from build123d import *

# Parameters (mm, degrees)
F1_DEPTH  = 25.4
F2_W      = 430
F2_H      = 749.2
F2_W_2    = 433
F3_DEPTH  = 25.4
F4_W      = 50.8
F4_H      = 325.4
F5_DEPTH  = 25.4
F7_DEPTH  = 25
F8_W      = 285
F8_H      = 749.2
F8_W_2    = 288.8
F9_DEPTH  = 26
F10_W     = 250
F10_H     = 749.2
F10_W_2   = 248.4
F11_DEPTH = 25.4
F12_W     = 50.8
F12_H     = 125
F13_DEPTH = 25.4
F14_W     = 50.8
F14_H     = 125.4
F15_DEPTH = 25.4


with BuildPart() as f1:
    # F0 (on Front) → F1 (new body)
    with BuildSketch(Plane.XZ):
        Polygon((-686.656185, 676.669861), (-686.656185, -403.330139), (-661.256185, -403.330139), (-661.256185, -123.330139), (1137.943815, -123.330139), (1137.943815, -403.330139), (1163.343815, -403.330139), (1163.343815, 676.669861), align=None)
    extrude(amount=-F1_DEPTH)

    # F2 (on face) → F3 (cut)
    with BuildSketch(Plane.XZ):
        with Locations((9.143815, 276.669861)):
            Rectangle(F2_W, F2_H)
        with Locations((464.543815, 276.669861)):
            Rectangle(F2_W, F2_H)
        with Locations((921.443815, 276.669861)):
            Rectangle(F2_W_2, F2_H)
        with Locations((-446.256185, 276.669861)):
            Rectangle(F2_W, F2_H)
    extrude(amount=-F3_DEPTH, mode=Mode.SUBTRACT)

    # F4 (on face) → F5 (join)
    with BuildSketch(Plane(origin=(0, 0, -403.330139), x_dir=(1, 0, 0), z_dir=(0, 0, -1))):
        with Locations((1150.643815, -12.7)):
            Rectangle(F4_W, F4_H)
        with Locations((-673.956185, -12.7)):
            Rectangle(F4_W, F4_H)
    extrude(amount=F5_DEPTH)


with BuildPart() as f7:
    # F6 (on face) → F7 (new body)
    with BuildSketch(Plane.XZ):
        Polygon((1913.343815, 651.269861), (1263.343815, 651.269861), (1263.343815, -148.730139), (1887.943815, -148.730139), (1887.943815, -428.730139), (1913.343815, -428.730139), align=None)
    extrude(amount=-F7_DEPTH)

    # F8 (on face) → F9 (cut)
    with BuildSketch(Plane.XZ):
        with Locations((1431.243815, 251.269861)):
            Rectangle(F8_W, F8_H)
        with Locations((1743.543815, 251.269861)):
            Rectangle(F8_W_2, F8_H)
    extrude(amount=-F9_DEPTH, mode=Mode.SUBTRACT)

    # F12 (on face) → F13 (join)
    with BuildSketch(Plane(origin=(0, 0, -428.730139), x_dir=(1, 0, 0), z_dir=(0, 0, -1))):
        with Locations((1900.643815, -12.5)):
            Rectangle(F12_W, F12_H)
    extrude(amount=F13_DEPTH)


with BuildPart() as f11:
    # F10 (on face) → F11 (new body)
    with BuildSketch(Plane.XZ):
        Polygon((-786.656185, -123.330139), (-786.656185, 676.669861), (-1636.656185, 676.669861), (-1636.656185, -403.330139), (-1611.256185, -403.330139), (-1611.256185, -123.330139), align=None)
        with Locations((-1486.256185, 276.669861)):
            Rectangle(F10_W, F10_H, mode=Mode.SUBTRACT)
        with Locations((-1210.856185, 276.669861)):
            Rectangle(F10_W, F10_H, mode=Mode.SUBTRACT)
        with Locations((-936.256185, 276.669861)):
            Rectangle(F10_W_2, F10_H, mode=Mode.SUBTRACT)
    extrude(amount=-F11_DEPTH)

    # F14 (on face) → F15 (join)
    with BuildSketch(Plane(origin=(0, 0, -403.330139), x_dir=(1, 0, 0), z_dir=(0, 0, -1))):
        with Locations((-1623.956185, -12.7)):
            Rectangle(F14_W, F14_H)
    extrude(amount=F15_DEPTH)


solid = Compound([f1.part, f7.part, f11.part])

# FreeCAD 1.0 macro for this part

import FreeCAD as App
import Part
import Sketcher
from FreeCAD import Vector
Q = App.Units.Quantity

doc = App.newDocument("Part")
body = doc.addObject("PartDesign::Body", "Body")

sketch1 = body.newObject("Sketcher::SketchObject", "Sketch")
sketch1.AttachmentSupport = (doc.getObject("XZ_Plane"), [""])
sketch1.MapMode = "FlatFace"
sketch1.addGeometry([
    Part.LineSegment(Vector(-687, 677, 0), Vector(-687, -403, 0)),
    Part.LineSegment(Vector(-687, -403, 0), Vector(-661, -403, 0)),
    Part.LineSegment(Vector(-661, -403, 0), Vector(-661, -123, 0)),
    Part.LineSegment(Vector(-661, -123, 0), Vector(1138, -123, 0)),
    Part.LineSegment(Vector(1138, -123, 0), Vector(1138, -403, 0)),
    Part.LineSegment(Vector(1138, -403, 0), Vector(1163, -403, 0)),
    Part.LineSegment(Vector(1163, -403, 0), Vector(1163, 677, 0)),
    Part.LineSegment(Vector(1163, 677, 0), Vector(-687, 677, 0)),
], False)
sketch1.addConstraint([
    Sketcher.Constraint("Coincident", 0, 2, 1, 1),
    Sketcher.Constraint("Coincident", 1, 2, 2, 1),
    Sketcher.Constraint("Coincident", 2, 2, 3, 1),
    Sketcher.Constraint("Coincident", 3, 2, 4, 1),
    Sketcher.Constraint("Coincident", 4, 2, 5, 1),
    Sketcher.Constraint("Coincident", 5, 2, 6, 1),
    Sketcher.Constraint("Coincident", 6, 2, 7, 1),
    Sketcher.Constraint("Coincident", 7, 2, 0, 1),
    Sketcher.Constraint("Vertical", 0),
    Sketcher.Constraint("Horizontal", 1),
    Sketcher.Constraint("Vertical", 2),
    Sketcher.Constraint("Horizontal", 3),
    Sketcher.Constraint("Vertical", 4),
    Sketcher.Constraint("Horizontal", 5),
    Sketcher.Constraint("Vertical", 6),
    Sketcher.Constraint("Horizontal", 7),
    Sketcher.Constraint("Horizontal", 1, 2, 4, 2),
    Sketcher.Constraint("Equal", 1, 5),
    Sketcher.Constraint("DistanceX", 7, 2, 7, 1, Q("1850 mm")),
    Sketcher.Constraint("DistanceY", 0, 2, 0, 1, Q("1080 mm")),
    Sketcher.Constraint("DistanceY", 2, 1, 2, 2, Q("280 mm")),
    Sketcher.Constraint("DistanceX", 1, 1, 1, 2, Q("25.4 mm")),
    Sketcher.Constraint("DistanceY", 0, 2, -1, 1, Q("403.330139 mm")),
    Sketcher.Constraint("DistanceX", 0, 2, -1, 1, Q("686.656185 mm")),
])
pad1 = body.newObject("PartDesign::Pad", "Pad")
pad1.Profile = sketch1
pad1.Length = 25.4
pad1.Reversed = True

sketch2 = body.newObject("Sketcher::SketchObject", "Sketch001")
sketch2.AttachmentSupport = (doc.getObject("XZ_Plane"), [""])
sketch2.MapMode = "FlatFace"
sketch2.addGeometry([
    Part.LineSegment(Vector(-206, 651, 0), Vector(-206, -98, 0)),
    Part.LineSegment(Vector(-206, -98, 0), Vector(224, -98, 0)),
    Part.LineSegment(Vector(224, -98, 0), Vector(224, 651, 0)),
    Part.LineSegment(Vector(224, 651, 0), Vector(-206, 651, 0)),
    Part.LineSegment(Vector(250, 651, 0), Vector(250, -98, 0)),
    Part.LineSegment(Vector(250, -98, 0), Vector(680, -98, 0)),
    Part.LineSegment(Vector(680, -98, 0), Vector(680, 651, 0)),
    Part.LineSegment(Vector(680, 651, 0), Vector(250, 651, 0)),
    Part.LineSegment(Vector(705, 651, 0), Vector(705, -98, 0)),
    Part.LineSegment(Vector(705, -98, 0), Vector(1138, -98, 0)),
    Part.LineSegment(Vector(1138, -98, 0), Vector(1138, 651, 0)),
    Part.LineSegment(Vector(1138, 651, 0), Vector(705, 651, 0)),
    Part.LineSegment(Vector(-661, 651, 0), Vector(-661, -98, 0)),
    Part.LineSegment(Vector(-661, -98, 0), Vector(-231, -98, 0)),
    Part.LineSegment(Vector(-231, -98, 0), Vector(-231, 651, 0)),
    Part.LineSegment(Vector(-231, 651, 0), Vector(-661, 651, 0)),
], False)
sketch2.addConstraint([
    Sketcher.Constraint("Coincident", 0, 2, 1, 1),
    Sketcher.Constraint("Coincident", 1, 2, 2, 1),
    Sketcher.Constraint("Coincident", 2, 2, 3, 1),
    Sketcher.Constraint("Coincident", 3, 2, 0, 1),
    Sketcher.Constraint("Coincident", 4, 2, 5, 1),
    Sketcher.Constraint("Coincident", 5, 2, 6, 1),
    Sketcher.Constraint("Coincident", 6, 2, 7, 1),
    Sketcher.Constraint("Coincident", 7, 2, 4, 1),
    Sketcher.Constraint("Coincident", 8, 2, 9, 1),
    Sketcher.Constraint("Coincident", 9, 2, 10, 1),
    Sketcher.Constraint("Coincident", 10, 2, 11, 1),
    Sketcher.Constraint("Coincident", 11, 2, 8, 1),
    Sketcher.Constraint("Coincident", 12, 2, 13, 1),
    Sketcher.Constraint("Coincident", 13, 2, 14, 1),
    Sketcher.Constraint("Coincident", 14, 2, 15, 1),
    Sketcher.Constraint("Coincident", 15, 2, 12, 1),
    Sketcher.Constraint("Vertical", 0),
    Sketcher.Constraint("Horizontal", 1),
    Sketcher.Constraint("Vertical", 2),
    Sketcher.Constraint("Horizontal", 3),
    Sketcher.Constraint("Vertical", 4),
    Sketcher.Constraint("Horizontal", 5),
    Sketcher.Constraint("Vertical", 6),
    Sketcher.Constraint("Horizontal", 7),
    Sketcher.Constraint("Vertical", 8),
    Sketcher.Constraint("Horizontal", 9),
    Sketcher.Constraint("Vertical", 10),
    Sketcher.Constraint("Horizontal", 11),
    Sketcher.Constraint("Vertical", 12),
    Sketcher.Constraint("Horizontal", 13),
    Sketcher.Constraint("Vertical", 14),
    Sketcher.Constraint("Horizontal", 15),
    Sketcher.Constraint("Horizontal", 1, 2, 4, 2),
    Sketcher.Constraint("Horizontal", 3, 2, 6, 2),
    Sketcher.Constraint("Horizontal", 5, 2, 8, 2),
    Sketcher.Constraint("Horizontal", 7, 2, 10, 2),
    Sketcher.Constraint("Horizontal", 9, 2, 12, 2),
    Sketcher.Constraint("Horizontal", 11, 2, 14, 2),
    Sketcher.Constraint("Equal", 3, 5),
    Sketcher.Constraint("Equal", 7, 13),
    Sketcher.Constraint("DistanceX", 1, 1, 1, 2, Q("430 mm")),
    Sketcher.Constraint("DistanceX", 9, 1, 9, 2, Q("433 mm")),
    Sketcher.Constraint("DistanceY", 0, 2, 0, 1, Q("749.2 mm")),
    Sketcher.Constraint("DistanceX", 1, 2, 4, 2, Q("25.4 mm")),
    Sketcher.Constraint("DistanceX", 5, 2, 8, 2, Q("25.4 mm")),
    Sketcher.Constraint("DistanceX", 12, 2, 0, 2, Q("455.4 mm")),
    Sketcher.Constraint("DistanceY", 0, 2, -1, 1, Q("97.930139 mm")),
    Sketcher.Constraint("DistanceX", 0, 2, -1, 1, Q("205.856185 mm")),
])
pocket1 = body.newObject("PartDesign::Pocket", "Pocket")
pocket1.Profile = sketch2
pocket1.Length = 25.4

sketch3 = body.newObject("Sketcher::SketchObject", "Sketch002")
sketch3.AttachmentSupport = (doc.getObject("XY_Plane"), [""])
sketch3.MapMode = "FlatFace"
sketch3.AttachmentOffset = App.Placement(Vector(0, 0, -403.330139), App.Rotation())
sketch3.addGeometry([
    Part.LineSegment(Vector(1125, -150, 0), Vector(1125, 175, 0)),
    Part.LineSegment(Vector(1125, 175, 0), Vector(1176, 175, 0)),
    Part.LineSegment(Vector(1176, 175, 0), Vector(1176, -150, 0)),
    Part.LineSegment(Vector(1176, -150, 0), Vector(1125, -150, 0)),
    Part.LineSegment(Vector(-699, -150, 0), Vector(-699, 175, 0)),
    Part.LineSegment(Vector(-699, 175, 0), Vector(-649, 175, 0)),
    Part.LineSegment(Vector(-649, 175, 0), Vector(-649, -150, 0)),
    Part.LineSegment(Vector(-649, -150, 0), Vector(-699, -150, 0)),
], False)
sketch3.addConstraint([
    Sketcher.Constraint("Coincident", 0, 2, 1, 1),
    Sketcher.Constraint("Coincident", 1, 2, 2, 1),
    Sketcher.Constraint("Coincident", 2, 2, 3, 1),
    Sketcher.Constraint("Coincident", 3, 2, 0, 1),
    Sketcher.Constraint("Coincident", 4, 2, 5, 1),
    Sketcher.Constraint("Coincident", 5, 2, 6, 1),
    Sketcher.Constraint("Coincident", 6, 2, 7, 1),
    Sketcher.Constraint("Coincident", 7, 2, 4, 1),
    Sketcher.Constraint("Vertical", 0),
    Sketcher.Constraint("Horizontal", 1),
    Sketcher.Constraint("Vertical", 2),
    Sketcher.Constraint("Horizontal", 3),
    Sketcher.Constraint("Vertical", 4),
    Sketcher.Constraint("Horizontal", 5),
    Sketcher.Constraint("Vertical", 6),
    Sketcher.Constraint("Horizontal", 7),
    Sketcher.Constraint("Horizontal", 1, 2, 4, 2),
    Sketcher.Constraint("Horizontal", 3, 2, 6, 2),
    Sketcher.Constraint("Equal", 3, 5),
    Sketcher.Constraint("DistanceX", 1, 1, 1, 2, Q("50.8 mm")),
    Sketcher.Constraint("DistanceY", 0, 1, 0, 2, Q("325.4 mm")),
    Sketcher.Constraint("DistanceY", 2, 2, -1, 1, Q("150 mm")),
    Sketcher.Constraint("DistanceX", 4, 2, 0, 2, Q("1824.6 mm")),
    Sketcher.Constraint("DistanceX", -1, 1, 0, 2, Q("1125.243815 mm")),
])
pad2 = body.newObject("PartDesign::Pad", "Pad001")
pad2.Profile = sketch3
pad2.Length = 25.4
pad2.Reversed = True
body2 = doc.addObject("PartDesign::Body", "Body001")

sketch4 = body2.newObject("Sketcher::SketchObject", "Sketch003")
sketch4.AttachmentSupport = (doc.getObject("XZ_Plane001"), [""])
sketch4.MapMode = "FlatFace"
sketch4.addGeometry([
    Part.LineSegment(Vector(1913, 651, 0), Vector(1263, 651, 0)),
    Part.LineSegment(Vector(1263, 651, 0), Vector(1263, -149, 0)),
    Part.LineSegment(Vector(1263, -149, 0), Vector(1888, -149, 0)),
    Part.LineSegment(Vector(1888, -149, 0), Vector(1888, -429, 0)),
    Part.LineSegment(Vector(1888, -429, 0), Vector(1913, -429, 0)),
    Part.LineSegment(Vector(1913, -429, 0), Vector(1913, 651, 0)),
], False)
sketch4.addConstraint([
    Sketcher.Constraint("Coincident", 0, 2, 1, 1),
    Sketcher.Constraint("Coincident", 1, 2, 2, 1),
    Sketcher.Constraint("Coincident", 2, 2, 3, 1),
    Sketcher.Constraint("Coincident", 3, 2, 4, 1),
    Sketcher.Constraint("Coincident", 4, 2, 5, 1),
    Sketcher.Constraint("Coincident", 5, 2, 0, 1),
    Sketcher.Constraint("Horizontal", 0),
    Sketcher.Constraint("Vertical", 1),
    Sketcher.Constraint("Horizontal", 2),
    Sketcher.Constraint("Vertical", 3),
    Sketcher.Constraint("Horizontal", 4),
    Sketcher.Constraint("Vertical", 5),
    Sketcher.Constraint("DistanceX", 0, 2, 0, 1, Q("650 mm")),
    Sketcher.Constraint("DistanceY", 1, 2, 1, 1, Q("800 mm")),
    Sketcher.Constraint("DistanceY", 3, 2, 3, 1, Q("280 mm")),
    Sketcher.Constraint("DistanceX", 2, 1, 2, 2, Q("624.6 mm")),
    Sketcher.Constraint("DistanceY", -1, 1, 0, 2, Q("651.269861 mm")),
    Sketcher.Constraint("DistanceX", -1, 1, 0, 2, Q("1263.343815 mm")),
])
pad3 = body2.newObject("PartDesign::Pad", "Pad002")
pad3.Profile = sketch4
pad3.Length = 25
pad3.Reversed = True

sketch5 = body2.newObject("Sketcher::SketchObject", "Sketch004")
sketch5.AttachmentSupport = (doc.getObject("XZ_Plane001"), [""])
sketch5.MapMode = "FlatFace"
sketch5.addGeometry([
    Part.LineSegment(Vector(1289, 626, 0), Vector(1289, -123, 0)),
    Part.LineSegment(Vector(1289, -123, 0), Vector(1574, -123, 0)),
    Part.LineSegment(Vector(1574, -123, 0), Vector(1574, 626, 0)),
    Part.LineSegment(Vector(1574, 626, 0), Vector(1289, 626, 0)),
    Part.LineSegment(Vector(1599, 626, 0), Vector(1599, -123, 0)),
    Part.LineSegment(Vector(1599, -123, 0), Vector(1888, -123, 0)),
    Part.LineSegment(Vector(1888, -123, 0), Vector(1888, 626, 0)),
    Part.LineSegment(Vector(1888, 626, 0), Vector(1599, 626, 0)),
], False)
sketch5.addConstraint([
    Sketcher.Constraint("Coincident", 0, 2, 1, 1),
    Sketcher.Constraint("Coincident", 1, 2, 2, 1),
    Sketcher.Constraint("Coincident", 2, 2, 3, 1),
    Sketcher.Constraint("Coincident", 3, 2, 0, 1),
    Sketcher.Constraint("Coincident", 4, 2, 5, 1),
    Sketcher.Constraint("Coincident", 5, 2, 6, 1),
    Sketcher.Constraint("Coincident", 6, 2, 7, 1),
    Sketcher.Constraint("Coincident", 7, 2, 4, 1),
    Sketcher.Constraint("Vertical", 0),
    Sketcher.Constraint("Horizontal", 1),
    Sketcher.Constraint("Vertical", 2),
    Sketcher.Constraint("Horizontal", 3),
    Sketcher.Constraint("Vertical", 4),
    Sketcher.Constraint("Horizontal", 5),
    Sketcher.Constraint("Vertical", 6),
    Sketcher.Constraint("Horizontal", 7),
    Sketcher.Constraint("Horizontal", 1, 2, 4, 2),
    Sketcher.Constraint("Horizontal", 3, 2, 6, 2),
    Sketcher.Constraint("DistanceX", 1, 1, 1, 2, Q("285 mm")),
    Sketcher.Constraint("DistanceX", 5, 1, 5, 2, Q("288.8 mm")),
    Sketcher.Constraint("DistanceY", 0, 2, 0, 1, Q("749.2 mm")),
    Sketcher.Constraint("DistanceX", 1, 2, 4, 2, Q("25.4 mm")),
    Sketcher.Constraint("DistanceY", 0, 2, -1, 1, Q("123.330139 mm")),
    Sketcher.Constraint("DistanceX", -1, 1, 0, 2, Q("1288.743815 mm")),
])
pocket2 = body2.newObject("PartDesign::Pocket", "Pocket001")
pocket2.Profile = sketch5
pocket2.Length = 26

sketch6 = body2.newObject("Sketcher::SketchObject", "Sketch005")
sketch6.AttachmentSupport = (doc.getObject("XY_Plane001"), [""])
sketch6.MapMode = "FlatFace"
sketch6.AttachmentOffset = App.Placement(Vector(0, 0, -428.730139), App.Rotation())
sketch6.addGeometry([
    Part.LineSegment(Vector(1875, -50, 0), Vector(1875, 75, 0)),
    Part.LineSegment(Vector(1875, 75, 0), Vector(1926, 75, 0)),
    Part.LineSegment(Vector(1926, 75, 0), Vector(1926, -50, 0)),
    Part.LineSegment(Vector(1926, -50, 0), Vector(1875, -50, 0)),
], False)
sketch6.addConstraint([
    Sketcher.Constraint("Coincident", 0, 2, 1, 1),
    Sketcher.Constraint("Coincident", 1, 2, 2, 1),
    Sketcher.Constraint("Coincident", 2, 2, 3, 1),
    Sketcher.Constraint("Coincident", 3, 2, 0, 1),
    Sketcher.Constraint("Vertical", 0),
    Sketcher.Constraint("Horizontal", 1),
    Sketcher.Constraint("Vertical", 2),
    Sketcher.Constraint("Horizontal", 3),
    Sketcher.Constraint("DistanceY", 0, 1, 0, 2, Q("125 mm")),
    Sketcher.Constraint("DistanceX", 1, 1, 1, 2, Q("50.8 mm")),
    Sketcher.Constraint("DistanceY", -1, 1, 0, 2, Q("75 mm")),
    Sketcher.Constraint("DistanceX", -1, 1, 0, 2, Q("1875.243815 mm")),
])
pad4 = body2.newObject("PartDesign::Pad", "Pad003")
pad4.Profile = sketch6
pad4.Length = 25.4
pad4.Reversed = True
body3 = doc.addObject("PartDesign::Body", "Body002")

sketch7 = body3.newObject("Sketcher::SketchObject", "Sketch006")
sketch7.AttachmentSupport = (doc.getObject("XZ_Plane002"), [""])
sketch7.MapMode = "FlatFace"
sketch7.addGeometry([
    Part.LineSegment(Vector(-787, -123, 0), Vector(-787, 677, 0)),
    Part.LineSegment(Vector(-787, 677, 0), Vector(-1637, 677, 0)),
    Part.LineSegment(Vector(-1637, 677, 0), Vector(-1637, -403, 0)),
    Part.LineSegment(Vector(-1637, -403, 0), Vector(-1611, -403, 0)),
    Part.LineSegment(Vector(-1611, -403, 0), Vector(-1611, -123, 0)),
    Part.LineSegment(Vector(-1611, -123, 0), Vector(-787, -123, 0)),
    Part.LineSegment(Vector(-1361, -98, 0), Vector(-1611, -98, 0)),
    Part.LineSegment(Vector(-1611, -98, 0), Vector(-1611, 651, 0)),
    Part.LineSegment(Vector(-1611, 651, 0), Vector(-1361, 651, 0)),
    Part.LineSegment(Vector(-1361, 651, 0), Vector(-1361, -98, 0)),
    Part.LineSegment(Vector(-1086, -98, 0), Vector(-1336, -98, 0)),
    Part.LineSegment(Vector(-1336, -98, 0), Vector(-1336, 651, 0)),
    Part.LineSegment(Vector(-1336, 651, 0), Vector(-1086, 651, 0)),
    Part.LineSegment(Vector(-1086, 651, 0), Vector(-1086, -98, 0)),
    Part.LineSegment(Vector(-812, -98, 0), Vector(-1060, -98, 0)),
    Part.LineSegment(Vector(-1060, -98, 0), Vector(-1060, 651, 0)),
    Part.LineSegment(Vector(-1060, 651, 0), Vector(-812, 651, 0)),
    Part.LineSegment(Vector(-812, 651, 0), Vector(-812, -98, 0)),
], False)
sketch7.addConstraint([
    Sketcher.Constraint("Coincident", 0, 2, 1, 1),
    Sketcher.Constraint("Coincident", 1, 2, 2, 1),
    Sketcher.Constraint("Coincident", 2, 2, 3, 1),
    Sketcher.Constraint("Coincident", 3, 2, 4, 1),
    Sketcher.Constraint("Coincident", 4, 2, 5, 1),
    Sketcher.Constraint("Coincident", 5, 2, 0, 1),
    Sketcher.Constraint("Coincident", 6, 2, 7, 1),
    Sketcher.Constraint("Coincident", 7, 2, 8, 1),
    Sketcher.Constraint("Coincident", 8, 2, 9, 1),
    Sketcher.Constraint("Coincident", 9, 2, 6, 1),
    Sketcher.Constraint("Coincident", 10, 2, 11, 1),
    Sketcher.Constraint("Coincident", 11, 2, 12, 1),
    Sketcher.Constraint("Coincident", 12, 2, 13, 1),
    Sketcher.Constraint("Coincident", 13, 2, 10, 1),
    Sketcher.Constraint("Coincident", 14, 2, 15, 1),
    Sketcher.Constraint("Coincident", 15, 2, 16, 1),
    Sketcher.Constraint("Coincident", 16, 2, 17, 1),
    Sketcher.Constraint("Coincident", 17, 2, 14, 1),
    Sketcher.Constraint("Vertical", 0),
    Sketcher.Constraint("Horizontal", 1),
    Sketcher.Constraint("Vertical", 2),
    Sketcher.Constraint("Horizontal", 3),
    Sketcher.Constraint("Vertical", 4),
    Sketcher.Constraint("Horizontal", 5),
    Sketcher.Constraint("Horizontal", 6),
    Sketcher.Constraint("Vertical", 7),
    Sketcher.Constraint("Horizontal", 8),
    Sketcher.Constraint("Vertical", 9),
    Sketcher.Constraint("Horizontal", 10),
    Sketcher.Constraint("Vertical", 11),
    Sketcher.Constraint("Horizontal", 12),
    Sketcher.Constraint("Vertical", 13),
    Sketcher.Constraint("Horizontal", 14),
    Sketcher.Constraint("Vertical", 15),
    Sketcher.Constraint("Horizontal", 16),
    Sketcher.Constraint("Vertical", 17),
    Sketcher.Constraint("Horizontal", 9, 2, 10, 2),
    Sketcher.Constraint("Horizontal", 8, 2, 11, 2),
    Sketcher.Constraint("Horizontal", 13, 2, 14, 2),
    Sketcher.Constraint("Horizontal", 12, 2, 15, 2),
    Sketcher.Constraint("Vertical", 4, 2, 6, 2),
    Sketcher.Constraint("Equal", 8, 10),
    Sketcher.Constraint("DistanceX", 1, 2, 1, 1, Q("850 mm")),
    Sketcher.Constraint("DistanceX", 6, 2, 6, 1, Q("250 mm")),
    Sketcher.Constraint("DistanceY", 0, 1, 0, 2, Q("800 mm")),
    Sketcher.Constraint("DistanceY", 2, 2, 2, 1, Q("1080 mm")),
    Sketcher.Constraint("DistanceX", 3, 1, 3, 2, Q("25.4 mm")),
    Sketcher.Constraint("DistanceX", 14, 2, 14, 1, Q("248.4 mm")),
    Sketcher.Constraint("DistanceY", 7, 1, 7, 2, Q("749.2 mm")),
    Sketcher.Constraint("DistanceY", 4, 2, 6, 2, Q("25.4 mm")),
    Sketcher.Constraint("DistanceX", 9, 2, 10, 2, Q("25.4 mm")),
    Sketcher.Constraint("DistanceX", 13, 2, 14, 2, Q("25.4 mm")),
    Sketcher.Constraint("DistanceY", -1, 1, 0, 2, Q("676.669861 mm")),
    Sketcher.Constraint("DistanceX", 0, 2, -1, 1, Q("786.656185 mm")),
])
pad5 = body3.newObject("PartDesign::Pad", "Pad004")
pad5.Profile = sketch7
pad5.Length = 25.4
pad5.Reversed = True

sketch8 = body3.newObject("Sketcher::SketchObject", "Sketch007")
sketch8.AttachmentSupport = (doc.getObject("XY_Plane002"), [""])
sketch8.MapMode = "FlatFace"
sketch8.AttachmentOffset = App.Placement(Vector(0, 0, -403.330139), App.Rotation())
sketch8.addGeometry([
    Part.LineSegment(Vector(-1649, -50, 0), Vector(-1649, 75, 0)),
    Part.LineSegment(Vector(-1649, 75, 0), Vector(-1599, 75, 0)),
    Part.LineSegment(Vector(-1599, 75, 0), Vector(-1599, -50, 0)),
    Part.LineSegment(Vector(-1599, -50, 0), Vector(-1649, -50, 0)),
], False)
sketch8.addConstraint([
    Sketcher.Constraint("Coincident", 0, 2, 1, 1),
    Sketcher.Constraint("Coincident", 1, 2, 2, 1),
    Sketcher.Constraint("Coincident", 2, 2, 3, 1),
    Sketcher.Constraint("Coincident", 3, 2, 0, 1),
    Sketcher.Constraint("Vertical", 0),
    Sketcher.Constraint("Horizontal", 1),
    Sketcher.Constraint("Vertical", 2),
    Sketcher.Constraint("Horizontal", 3),
    Sketcher.Constraint("DistanceX", 1, 1, 1, 2, Q("50.8 mm")),
    Sketcher.Constraint("DistanceY", 0, 1, 0, 2, Q("125.4 mm")),
    Sketcher.Constraint("DistanceY", 2, 2, -1, 1, Q("50 mm")),
    Sketcher.Constraint("DistanceX", 0, 2, -1, 1, Q("1649.356185 mm")),
])
pad6 = body3.newObject("PartDesign::Pad", "Pad005")
pad6.Profile = sketch8
pad6.Length = 25.4
pad6.Reversed = True

doc.recompute()
